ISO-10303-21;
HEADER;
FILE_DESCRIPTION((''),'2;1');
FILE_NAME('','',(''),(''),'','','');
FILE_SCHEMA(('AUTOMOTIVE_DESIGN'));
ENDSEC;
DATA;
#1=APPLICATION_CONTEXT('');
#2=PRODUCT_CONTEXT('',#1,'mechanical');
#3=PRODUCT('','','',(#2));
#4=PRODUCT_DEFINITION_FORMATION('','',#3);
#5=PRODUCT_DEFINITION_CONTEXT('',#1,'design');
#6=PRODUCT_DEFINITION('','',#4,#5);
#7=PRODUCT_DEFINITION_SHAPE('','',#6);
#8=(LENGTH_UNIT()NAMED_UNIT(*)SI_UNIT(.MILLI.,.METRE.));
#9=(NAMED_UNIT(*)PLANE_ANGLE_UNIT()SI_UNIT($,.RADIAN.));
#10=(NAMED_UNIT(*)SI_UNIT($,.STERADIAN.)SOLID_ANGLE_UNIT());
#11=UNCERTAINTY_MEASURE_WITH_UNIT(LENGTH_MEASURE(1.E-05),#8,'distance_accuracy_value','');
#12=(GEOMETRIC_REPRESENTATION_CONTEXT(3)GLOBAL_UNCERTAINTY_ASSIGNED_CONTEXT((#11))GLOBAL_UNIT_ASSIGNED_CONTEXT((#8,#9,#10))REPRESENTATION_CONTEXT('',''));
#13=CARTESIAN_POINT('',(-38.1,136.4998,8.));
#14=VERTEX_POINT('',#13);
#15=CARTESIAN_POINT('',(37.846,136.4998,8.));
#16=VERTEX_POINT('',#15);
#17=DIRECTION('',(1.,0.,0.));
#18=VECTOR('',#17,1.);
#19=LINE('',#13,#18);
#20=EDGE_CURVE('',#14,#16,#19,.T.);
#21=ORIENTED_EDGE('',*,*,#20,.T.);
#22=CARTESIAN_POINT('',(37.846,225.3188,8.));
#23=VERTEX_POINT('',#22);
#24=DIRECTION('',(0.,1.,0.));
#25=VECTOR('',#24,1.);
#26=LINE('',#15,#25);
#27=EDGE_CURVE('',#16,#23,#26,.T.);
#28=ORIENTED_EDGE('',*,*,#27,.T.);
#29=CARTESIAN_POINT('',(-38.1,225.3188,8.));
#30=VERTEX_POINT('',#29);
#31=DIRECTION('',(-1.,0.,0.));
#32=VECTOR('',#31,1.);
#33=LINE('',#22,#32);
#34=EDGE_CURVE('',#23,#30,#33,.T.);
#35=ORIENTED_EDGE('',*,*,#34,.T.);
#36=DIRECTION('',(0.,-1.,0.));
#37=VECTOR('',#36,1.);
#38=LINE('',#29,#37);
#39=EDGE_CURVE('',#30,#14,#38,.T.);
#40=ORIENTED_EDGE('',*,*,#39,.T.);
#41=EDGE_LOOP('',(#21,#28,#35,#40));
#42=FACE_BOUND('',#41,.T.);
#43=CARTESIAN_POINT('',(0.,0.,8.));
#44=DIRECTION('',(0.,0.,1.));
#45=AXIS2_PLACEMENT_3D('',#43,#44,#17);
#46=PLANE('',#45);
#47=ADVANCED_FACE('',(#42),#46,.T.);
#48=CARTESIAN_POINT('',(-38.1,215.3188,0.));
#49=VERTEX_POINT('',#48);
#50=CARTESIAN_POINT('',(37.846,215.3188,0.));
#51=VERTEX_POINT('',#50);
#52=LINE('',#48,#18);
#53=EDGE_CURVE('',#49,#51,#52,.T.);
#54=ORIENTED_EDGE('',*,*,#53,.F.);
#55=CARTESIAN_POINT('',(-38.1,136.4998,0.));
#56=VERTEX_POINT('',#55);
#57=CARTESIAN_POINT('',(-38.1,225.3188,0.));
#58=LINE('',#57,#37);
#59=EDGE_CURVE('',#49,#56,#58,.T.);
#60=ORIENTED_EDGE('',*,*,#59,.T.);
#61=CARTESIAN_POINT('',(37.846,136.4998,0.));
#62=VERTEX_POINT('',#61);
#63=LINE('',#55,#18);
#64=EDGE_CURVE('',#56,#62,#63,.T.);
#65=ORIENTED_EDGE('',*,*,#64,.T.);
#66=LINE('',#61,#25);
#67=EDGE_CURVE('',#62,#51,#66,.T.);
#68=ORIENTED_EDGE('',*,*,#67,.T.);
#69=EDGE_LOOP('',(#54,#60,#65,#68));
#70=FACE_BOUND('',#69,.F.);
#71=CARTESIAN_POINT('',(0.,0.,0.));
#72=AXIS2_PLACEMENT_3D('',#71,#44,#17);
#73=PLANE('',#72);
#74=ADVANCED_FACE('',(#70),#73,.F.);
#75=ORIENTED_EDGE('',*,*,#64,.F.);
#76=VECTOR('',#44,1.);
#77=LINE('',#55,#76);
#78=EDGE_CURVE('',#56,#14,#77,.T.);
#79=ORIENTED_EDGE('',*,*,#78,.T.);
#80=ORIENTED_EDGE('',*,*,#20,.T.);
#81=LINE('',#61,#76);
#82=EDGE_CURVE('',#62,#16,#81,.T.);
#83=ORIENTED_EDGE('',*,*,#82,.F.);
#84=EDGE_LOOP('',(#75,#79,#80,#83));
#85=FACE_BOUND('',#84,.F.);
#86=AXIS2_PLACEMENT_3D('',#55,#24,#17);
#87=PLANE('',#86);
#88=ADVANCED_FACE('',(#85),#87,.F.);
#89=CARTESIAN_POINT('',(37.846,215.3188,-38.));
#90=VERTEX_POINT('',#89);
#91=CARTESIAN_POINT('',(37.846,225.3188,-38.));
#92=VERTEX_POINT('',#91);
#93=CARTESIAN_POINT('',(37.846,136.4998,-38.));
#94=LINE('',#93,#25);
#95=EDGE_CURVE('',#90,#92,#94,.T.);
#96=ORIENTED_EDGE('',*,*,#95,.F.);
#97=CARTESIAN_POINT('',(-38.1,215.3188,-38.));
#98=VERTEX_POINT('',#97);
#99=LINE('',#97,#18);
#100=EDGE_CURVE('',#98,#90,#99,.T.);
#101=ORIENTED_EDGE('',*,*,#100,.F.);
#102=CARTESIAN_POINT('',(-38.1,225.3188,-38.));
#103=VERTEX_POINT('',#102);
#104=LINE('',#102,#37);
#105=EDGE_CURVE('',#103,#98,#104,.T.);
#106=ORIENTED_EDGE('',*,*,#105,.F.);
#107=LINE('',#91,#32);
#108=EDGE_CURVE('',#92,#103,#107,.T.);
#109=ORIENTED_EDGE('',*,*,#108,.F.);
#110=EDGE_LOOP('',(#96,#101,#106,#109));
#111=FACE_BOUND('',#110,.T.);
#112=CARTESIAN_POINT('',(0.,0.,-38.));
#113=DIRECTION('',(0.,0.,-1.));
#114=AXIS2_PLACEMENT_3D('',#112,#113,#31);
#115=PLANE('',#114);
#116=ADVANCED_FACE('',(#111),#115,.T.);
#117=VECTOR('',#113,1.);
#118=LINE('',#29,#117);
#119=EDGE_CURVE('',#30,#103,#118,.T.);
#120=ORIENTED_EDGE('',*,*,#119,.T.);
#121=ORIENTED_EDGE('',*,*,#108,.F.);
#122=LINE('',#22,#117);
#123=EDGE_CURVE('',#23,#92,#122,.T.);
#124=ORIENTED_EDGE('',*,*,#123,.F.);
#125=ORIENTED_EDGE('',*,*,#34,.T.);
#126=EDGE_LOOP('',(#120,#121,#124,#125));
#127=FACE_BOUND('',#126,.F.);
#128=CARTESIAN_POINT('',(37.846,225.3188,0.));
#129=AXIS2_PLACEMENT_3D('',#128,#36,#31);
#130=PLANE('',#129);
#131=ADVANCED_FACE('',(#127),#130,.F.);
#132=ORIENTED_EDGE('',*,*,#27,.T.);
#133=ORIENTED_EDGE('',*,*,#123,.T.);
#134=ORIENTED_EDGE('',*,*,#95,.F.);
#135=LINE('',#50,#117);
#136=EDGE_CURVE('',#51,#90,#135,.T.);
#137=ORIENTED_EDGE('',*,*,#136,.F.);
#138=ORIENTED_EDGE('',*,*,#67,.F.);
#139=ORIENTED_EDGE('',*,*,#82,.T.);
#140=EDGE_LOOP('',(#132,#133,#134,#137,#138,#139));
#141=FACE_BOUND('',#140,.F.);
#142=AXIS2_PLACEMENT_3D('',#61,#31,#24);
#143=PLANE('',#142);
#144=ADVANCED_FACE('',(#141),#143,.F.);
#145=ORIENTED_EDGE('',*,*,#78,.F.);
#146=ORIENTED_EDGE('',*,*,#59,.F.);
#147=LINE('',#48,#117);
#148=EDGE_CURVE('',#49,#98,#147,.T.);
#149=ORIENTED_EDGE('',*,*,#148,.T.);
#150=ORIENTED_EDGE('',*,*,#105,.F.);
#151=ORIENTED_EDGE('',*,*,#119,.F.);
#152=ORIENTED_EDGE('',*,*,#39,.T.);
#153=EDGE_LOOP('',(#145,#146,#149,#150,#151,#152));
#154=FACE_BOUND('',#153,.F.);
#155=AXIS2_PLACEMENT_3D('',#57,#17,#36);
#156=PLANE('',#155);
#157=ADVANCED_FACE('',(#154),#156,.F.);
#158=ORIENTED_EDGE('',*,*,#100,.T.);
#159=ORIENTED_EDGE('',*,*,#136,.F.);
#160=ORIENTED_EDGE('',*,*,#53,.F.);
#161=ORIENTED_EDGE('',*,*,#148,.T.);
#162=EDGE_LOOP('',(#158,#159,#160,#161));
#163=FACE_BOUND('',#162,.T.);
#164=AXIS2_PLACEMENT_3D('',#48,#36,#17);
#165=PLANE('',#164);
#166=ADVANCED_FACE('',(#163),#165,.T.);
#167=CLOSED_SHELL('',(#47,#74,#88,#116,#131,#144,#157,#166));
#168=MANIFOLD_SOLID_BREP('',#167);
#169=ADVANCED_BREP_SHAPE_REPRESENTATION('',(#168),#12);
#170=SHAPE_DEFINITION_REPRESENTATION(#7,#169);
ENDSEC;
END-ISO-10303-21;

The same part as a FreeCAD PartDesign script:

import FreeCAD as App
import Part
import Sketcher
from FreeCAD import Vector


def add_polygon(sketch, points):
    """Adds a closed chain of lines whose ends are joined by coincident constraints."""
    first, n = sketch.GeometryCount, len(points)
    for a, b in zip(points, points[1:] + points[:1]):
        sketch.addGeometry(Part.LineSegment(App.Vector(*a, 0), App.Vector(*b, 0)), False)
    for i in range(n):
        sketch.addConstraint(Sketcher.Constraint("Coincident", first + i, 2, first + (i + 1) % n, 1))

doc = App.newDocument("Part")
body = doc.addObject("PartDesign::Body", "Body")

# Sketch on XY plane
sketch1 = body.newObject("Sketcher::SketchObject", "Sketch")
sketch1.AttachmentSupport = (doc.getObject("XY_Plane"), [""])
sketch1.MapMode = "FlatFace"
add_polygon(sketch1, [(-38, 225), (-38, 136), (38, 136), (38, 225)])  # lines 0-3
sketch1.addConstraint(Sketcher.Constraint("Vertical", 0))
sketch1.addConstraint(Sketcher.Constraint("Horizontal", 1))
sketch1.addConstraint(Sketcher.Constraint("Vertical", 2))
sketch1.addConstraint(Sketcher.Constraint("Horizontal", 3))
sketch1.addConstraint(Sketcher.Constraint("DistanceX", 0, 2, -1, 1, 38.1))
sketch1.addConstraint(Sketcher.Constraint("DistanceX", 1, 1, 1, 2, 75.946))
sketch1.addConstraint(Sketcher.Constraint("DistanceY", 0, 2, 0, 1, 88.819))
sketch1.addConstraint(Sketcher.Constraint("DistanceY", -1, 1, 0, 2, 136.4998))
pad1 = body.newObject("PartDesign::Pad", "Pad")
pad1.Profile = sketch1
pad1.Length = 8

# Sketch on XY plane
sketch2 = body.newObject("Sketcher::SketchObject", "Sketch001")
sketch2.AttachmentSupport = (doc.getObject("XY_Plane"), [""])
sketch2.MapMode = "FlatFace"
add_polygon(sketch2, [(38, 225), (38, 215), (-38, 215), (-38, 225)])  # lines 0-3
sketch2.addConstraint(Sketcher.Constraint("Vertical", 0))
sketch2.addConstraint(Sketcher.Constraint("Horizontal", 1))
sketch2.addConstraint(Sketcher.Constraint("Vertical", 2))
sketch2.addConstraint(Sketcher.Constraint("Horizontal", 3))
sketch2.addConstraint(Sketcher.Constraint("DistanceY", 0, 2, 0, 1, 10.0))
sketch2.addConstraint(Sketcher.Constraint("DistanceX", 1, 2, -1, 1, 38.1))
sketch2.addConstraint(Sketcher.Constraint("DistanceX", 1, 2, 1, 1, 75.946))
sketch2.addConstraint(Sketcher.Constraint("DistanceY", -1, 1, 0, 2, 215.3188))
pad2 = body.newObject("PartDesign::Pad", "Pad001")
pad2.Profile = sketch2
pad2.Length = 38
pad2.Reversed = True

doc.recompute()
